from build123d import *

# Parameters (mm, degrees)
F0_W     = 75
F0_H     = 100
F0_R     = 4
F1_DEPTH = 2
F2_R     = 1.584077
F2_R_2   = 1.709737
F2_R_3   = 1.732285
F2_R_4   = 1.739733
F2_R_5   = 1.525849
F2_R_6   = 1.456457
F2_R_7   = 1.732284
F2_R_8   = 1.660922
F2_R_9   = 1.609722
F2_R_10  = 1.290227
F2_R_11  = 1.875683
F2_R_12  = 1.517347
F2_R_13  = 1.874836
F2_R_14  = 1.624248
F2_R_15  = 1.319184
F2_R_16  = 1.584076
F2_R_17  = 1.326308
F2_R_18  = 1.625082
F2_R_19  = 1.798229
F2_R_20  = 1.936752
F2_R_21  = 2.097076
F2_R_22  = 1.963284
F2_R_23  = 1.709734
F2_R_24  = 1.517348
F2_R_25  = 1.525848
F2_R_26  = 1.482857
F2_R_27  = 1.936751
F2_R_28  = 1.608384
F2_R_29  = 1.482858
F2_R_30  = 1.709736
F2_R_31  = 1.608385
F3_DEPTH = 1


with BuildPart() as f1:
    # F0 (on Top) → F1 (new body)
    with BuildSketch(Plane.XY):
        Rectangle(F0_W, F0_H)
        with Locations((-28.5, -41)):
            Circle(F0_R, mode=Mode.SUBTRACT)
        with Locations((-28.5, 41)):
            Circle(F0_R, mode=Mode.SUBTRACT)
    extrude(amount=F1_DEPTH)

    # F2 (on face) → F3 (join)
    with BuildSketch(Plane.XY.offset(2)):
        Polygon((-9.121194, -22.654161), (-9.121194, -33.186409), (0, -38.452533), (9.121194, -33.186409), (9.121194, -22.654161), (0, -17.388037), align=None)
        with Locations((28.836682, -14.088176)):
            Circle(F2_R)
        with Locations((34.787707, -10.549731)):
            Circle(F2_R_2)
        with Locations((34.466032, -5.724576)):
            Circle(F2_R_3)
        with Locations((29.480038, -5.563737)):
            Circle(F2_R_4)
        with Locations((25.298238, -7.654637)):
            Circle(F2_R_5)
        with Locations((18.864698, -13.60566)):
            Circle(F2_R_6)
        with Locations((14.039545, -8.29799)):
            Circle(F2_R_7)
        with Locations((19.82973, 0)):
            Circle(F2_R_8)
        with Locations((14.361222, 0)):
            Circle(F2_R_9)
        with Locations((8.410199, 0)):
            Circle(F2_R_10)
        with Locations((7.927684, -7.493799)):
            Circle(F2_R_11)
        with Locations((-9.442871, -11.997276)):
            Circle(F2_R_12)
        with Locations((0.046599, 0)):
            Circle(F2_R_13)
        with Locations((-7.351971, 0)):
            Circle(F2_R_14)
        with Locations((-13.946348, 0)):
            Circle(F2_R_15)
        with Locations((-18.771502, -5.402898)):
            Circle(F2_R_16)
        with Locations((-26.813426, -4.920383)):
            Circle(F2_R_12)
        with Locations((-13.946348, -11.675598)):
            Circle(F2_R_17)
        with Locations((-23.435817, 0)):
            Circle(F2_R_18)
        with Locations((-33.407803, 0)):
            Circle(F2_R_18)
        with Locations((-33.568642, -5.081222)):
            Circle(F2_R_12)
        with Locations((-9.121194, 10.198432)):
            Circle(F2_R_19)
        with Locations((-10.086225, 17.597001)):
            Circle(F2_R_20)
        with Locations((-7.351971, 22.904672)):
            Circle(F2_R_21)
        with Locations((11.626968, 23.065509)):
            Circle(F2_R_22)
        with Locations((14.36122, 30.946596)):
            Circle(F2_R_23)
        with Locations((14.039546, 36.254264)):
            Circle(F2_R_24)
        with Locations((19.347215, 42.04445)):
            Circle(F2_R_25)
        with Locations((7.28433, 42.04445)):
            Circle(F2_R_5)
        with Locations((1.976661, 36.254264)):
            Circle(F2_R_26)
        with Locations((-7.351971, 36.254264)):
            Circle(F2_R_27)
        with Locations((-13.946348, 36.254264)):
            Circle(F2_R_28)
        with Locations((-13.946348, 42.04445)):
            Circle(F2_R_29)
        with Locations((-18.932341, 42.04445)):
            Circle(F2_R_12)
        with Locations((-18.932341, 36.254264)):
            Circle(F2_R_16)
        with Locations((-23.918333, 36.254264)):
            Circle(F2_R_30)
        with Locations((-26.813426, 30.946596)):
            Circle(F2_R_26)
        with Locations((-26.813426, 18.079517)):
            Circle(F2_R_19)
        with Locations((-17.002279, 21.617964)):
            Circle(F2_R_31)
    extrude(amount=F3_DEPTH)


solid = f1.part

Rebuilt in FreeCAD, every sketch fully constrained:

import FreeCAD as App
import Part
import Sketcher
Q = App.Units.Quantity

doc = App.newDocument("Part")
params = doc.addObject("Spreadsheet::Sheet", "Params")
for row, (alias, value) in enumerate([
    ("sketch1_diameter", "8 mm"),
    ("sketch1_width", "75 mm"),
    ("sketch1_height", "100 mm"),
    ("pad1_length", "2 mm"),
    ("pad2_length", "1 mm"),
], start=1):
    params.set(f"A{row}", alias)
    params.set(f"B{row}", "=" + value)
    params.setAlias(f"B{row}", alias)

body = doc.addObject("PartDesign::Body", "Body")

# Sketch on XY plane
sketch1 = body.newObject("Sketcher::SketchObject", "Sketch")
sketch1.AttachmentSupport = (doc.getObject("XY_Plane"), [""])
sketch1.MapMode = "FlatFace"
sketch1.addGeometry([
    Part.LineSegment(App.Vector(-37.5, 50, 0), App.Vector(-37.5, -50, 0)),  # 0
    Part.LineSegment(App.Vector(-37.5, -50, 0), App.Vector(37.5, -50, 0)),  # 1
    Part.LineSegment(App.Vector(37.5, -50, 0), App.Vector(37.5, 50, 0)),  # 2
    Part.LineSegment(App.Vector(37.5, 50, 0), App.Vector(-37.5, 50, 0)),  # 3
    Part.Circle(App.Vector(-28.5, -41, 0), App.Vector(0, 0, 1), 4),  # 4
    Part.Circle(App.Vector(-28.5, 41, 0), App.Vector(0, 0, 1), 4),  # 5
], False)
sketch1.addConstraint([
    Sketcher.Constraint("Coincident", 0, 2, 1, 1),
    Sketcher.Constraint("Coincident", 1, 2, 2, 1),
    Sketcher.Constraint("Coincident", 2, 2, 3, 1),
    Sketcher.Constraint("Coincident", 3, 2, 0, 1),
    Sketcher.Constraint("Vertical", 0),
    Sketcher.Constraint("Horizontal", 1),
    Sketcher.Constraint("Vertical", 2),
    Sketcher.Constraint("Horizontal", 3),
    Sketcher.Constraint("Equal", 4, 5),
    Sketcher.Constraint("Symmetric", 0, 2, 2, 2, -1, 1),
    Sketcher.Constraint("Symmetric", 4, 3, 5, 3, -1),
    Sketcher.Constraint("Diameter", 4, Q("8 mm")),
    Sketcher.Constraint("DistanceX", 1, 1, 1, 2, Q("75 mm")),
    Sketcher.Constraint("DistanceY", 0, 2, 0, 1, Q("100 mm")),
    Sketcher.Constraint("DistanceY", 4, 3, -1, 1, Q("41 mm")),
    Sketcher.Constraint("DistanceX", 0, 2, 4, 3, Q("9 mm")),
])
sketch1.setExpression("Constraints[11]", "Params.sketch1_diameter")
sketch1.setExpression("Constraints[12]", "Params.sketch1_width")
sketch1.setExpression("Constraints[13]", "Params.sketch1_height")
pad1 = body.newObject("PartDesign::Pad", "Pad")
pad1.Profile = sketch1
pad1.setExpression("Length", "Params.pad1_length")

# Sketch on XY plane
sketch2 = body.newObject("Sketcher::SketchObject", "Sketch001")
sketch2.AttachmentSupport = (doc.getObject("XY_Plane"), [""])
sketch2.MapMode = "FlatFace"
sketch2.AttachmentOffset = App.Placement(App.Vector(0, 0, 2), App.Rotation())
sketch2.addGeometry([
    Part.LineSegment(App.Vector(-9.1, -22.7, 0), App.Vector(-9.1, -33.2, 0)),  # 0
    Part.LineSegment(App.Vector(-9.1, -33.2, 0), App.Vector(0, -38.5, 0)),  # 1
    Part.LineSegment(App.Vector(0, -38.5, 0), App.Vector(9.1, -33.2, 0)),  # 2
    Part.LineSegment(App.Vector(9.1, -33.2, 0), App.Vector(9.1, -22.7, 0)),  # 3
    Part.LineSegment(App.Vector(9.1, -22.7, 0), App.Vector(0, -17.4, 0)),  # 4
    Part.LineSegment(App.Vector(0, -17.4, 0), App.Vector(-9.1, -22.7, 0)),  # 5
    Part.Circle(App.Vector(28.8, -14.1, 0), App.Vector(0, 0, 1), 1.6),  # 6
    Part.Circle(App.Vector(34.8, -10.5, 0), App.Vector(0, 0, 1), 1.7),  # 7
    Part.Circle(App.Vector(34.5, -5.7, 0), App.Vector(0, 0, 1), 1.7),  # 8
    Part.Circle(App.Vector(29.5, -5.6, 0), App.Vector(0, 0, 1), 1.7),  # 9
    Part.Circle(App.Vector(25.3, -7.7, 0), App.Vector(0, 0, 1), 1.5),  # 10
    Part.Circle(App.Vector(18.9, -13.6, 0), App.Vector(0, 0, 1), 1.5),  # 11
    Part.Circle(App.Vector(14, -8.3, 0), App.Vector(0, 0, 1), 1.7),  # 12
    Part.Circle(App.Vector(19.8, 0, 0), App.Vector(0, 0, 1), 1.7),  # 13
    Part.Circle(App.Vector(14.4, 0, 0), App.Vector(0, 0, 1), 1.6),  # 14
    Part.Circle(App.Vector(8.4, 0, 0), App.Vector(0, 0, 1), 1.3),  # 15
    Part.Circle(App.Vector(7.9, -7.5, 0), App.Vector(0, 0, 1), 1.9),  # 16
    Part.Circle(App.Vector(-9.4, -12, 0), App.Vector(0, 0, 1), 1.5),  # 17
    Part.Circle(App.Vector(0, 0, 0), App.Vector(0, 0, 1), 1.9),  # 18
    Part.Circle(App.Vector(-7.4, 0, 0), App.Vector(0, 0, 1), 1.6),  # 19
    Part.Circle(App.Vector(-13.9, 0, 0), App.Vector(0, 0, 1), 1.3),  # 20
    Part.Circle(App.Vector(-18.8, -5.4, 0), App.Vector(0, 0, 1), 1.6),  # 21
    Part.Circle(App.Vector(-26.8, -4.9, 0), App.Vector(0, 0, 1), 1.5),  # 22
    Part.Circle(App.Vector(-13.9, -11.7, 0), App.Vector(0, 0, 1), 1.3),  # 23
    Part.Circle(App.Vector(-23.4, 0, 0), App.Vector(0, 0, 1), 1.6),  # 24
    Part.Circle(App.Vector(-33.4, 0, 0), App.Vector(0, 0, 1), 1.6),  # 25
    Part.Circle(App.Vector(-33.6, -5.1, 0), App.Vector(0, 0, 1), 1.5),  # 26
    Part.Circle(App.Vector(-9.1, 10.2, 0), App.Vector(0, 0, 1), 1.8),  # 27
    Part.Circle(App.Vector(-10.1, 17.6, 0), App.Vector(0, 0, 1), 1.9),  # 28
    Part.Circle(App.Vector(-7.4, 22.9, 0), App.Vector(0, 0, 1), 2.1),  # 29
    Part.Circle(App.Vector(11.6, 23.1, 0), App.Vector(0, 0, 1), 2),  # 30
    Part.Circle(App.Vector(14.4, 30.9, 0), App.Vector(0, 0, 1), 1.7),  # 31
    Part.Circle(App.Vector(14, 36.3, 0), App.Vector(0, 0, 1), 1.5),  # 32
    Part.Circle(App.Vector(19.3, 42, 0), App.Vector(0, 0, 1), 1.5),  # 33
    Part.Circle(App.Vector(7.3, 42, 0), App.Vector(0, 0, 1), 1.5),  # 34
    Part.Circle(App.Vector(2, 36.3, 0), App.Vector(0, 0, 1), 1.5),  # 35
    Part.Circle(App.Vector(-7.4, 36.3, 0), App.Vector(0, 0, 1), 1.9),  # 36
    Part.Circle(App.Vector(-13.9, 36.3, 0), App.Vector(0, 0, 1), 1.6),  # 37
    Part.Circle(App.Vector(-13.9, 42, 0), App.Vector(0, 0, 1), 1.5),  # 38
    Part.Circle(App.Vector(-18.9, 42, 0), App.Vector(0, 0, 1), 1.5),  # 39
    Part.Circle(App.Vector(-18.9, 36.3, 0), App.Vector(0, 0, 1), 1.6),  # 40
    Part.Circle(App.Vector(-23.9, 36.3, 0), App.Vector(0, 0, 1), 1.7),  # 41
    Part.Circle(App.Vector(-26.8, 30.9, 0), App.Vector(0, 0, 1), 1.5),  # 42
    Part.Circle(App.Vector(-26.8, 18.1, 0), App.Vector(0, 0, 1), 1.8),  # 43
    Part.Circle(App.Vector(-17, 21.6, 0), App.Vector(0, 0, 1), 1.6),  # 44
], False)
sketch2.addConstraint([
    Sketcher.Constraint("Coincident", 0, 2, 1, 1),
    Sketcher.Constraint("Coincident", 1, 2, 2, 1),
    Sketcher.Constraint("Coincident", 2, 2, 3, 1),
    Sketcher.Constraint("Coincident", 3, 2, 4, 1),
    Sketcher.Constraint("Coincident", 4, 2, 5, 1),
    Sketcher.Constraint("Coincident", 5, 2, 0, 1),
    Sketcher.Constraint("Vertical", 0),
    Sketcher.Constraint("Vertical", 3),
    Sketcher.Constraint("Equal", 8, 12),
    Sketcher.Constraint("Equal", 6, 21),
    Sketcher.Constraint("Equal", 17, 22),
    Sketcher.Constraint("Equal", 24, 25),
    Sketcher.Constraint("Equal", 22, 26),
    Sketcher.Constraint("Equal", 26, 32),
    Sketcher.Constraint("Equal", 10, 33),
    Sketcher.Constraint("Equal", 33, 34),
    Sketcher.Constraint("Equal", 28, 36),
    Sketcher.Constraint("Equal", 35, 38),
    Sketcher.Constraint("Equal", 32, 39),
    Sketcher.Constraint("Equal", 21, 40),
    Sketcher.Constraint("Equal", 31, 41),
    Sketcher.Constraint("Equal", 38, 42),
    Sketcher.Constraint("Equal", 27, 43),
    Sketcher.Constraint("Equal", 37, 44),
    Sketcher.Constraint("Symmetric", 0, 2, 2, 2, -2),
    Sketcher.Constraint("PointOnObject", 13, 3, -1),
    Sketcher.Constraint("PointOnObject", 14, 3, -1),
    Sketcher.Constraint("PointOnObject", 15, 3, -1),
    Sketcher.Constraint("PointOnObject", 18, 3, -1),
    Sketcher.Constraint("PointOnObject", 19, 3, -1),
    Sketcher.Constraint("PointOnObject", 20, 3, -1),
    Sketcher.Constraint("PointOnObject", 24, 3, -1),
    Sketcher.Constraint("PointOnObject", 25, 3, -1),
    Sketcher.Constraint("PointOnObject", 1, 2, -2),
    Sketcher.Constraint("PointOnObject", 4, 2, -2),
    Sketcher.Constraint("Parallel", 1, 4),
    Sketcher.Constraint("Parallel", 2, 5),
    Sketcher.Constraint("Horizontal", 33, 3, 34, 3),
    Sketcher.Constraint("Horizontal", 32, 3, 35, 3),
    Sketcher.Constraint("Horizontal", 35, 3, 36, 3),
    Sketcher.Constraint("Horizontal", 36, 3, 37, 3),
    Sketcher.Constraint("Horizontal", 34, 3, 38, 3),
    Sketcher.Constraint("Horizontal", 38, 3, 39, 3),
    Sketcher.Constraint("Horizontal", 37, 3, 40, 3),
    Sketcher.Constraint("Horizontal", 40, 3, 41, 3),
    Sketcher.Constraint("Horizontal", 31, 3, 42, 3),
    Sketcher.Constraint("Vertical", 20, 3, 23, 3),
    Sketcher.Constraint("Vertical", 19, 3, 29, 3),
    Sketcher.Constraint("Vertical", 12, 3, 32, 3),
    Sketcher.Constraint("Vertical", 29, 3, 36, 3),
    Sketcher.Constraint("Vertical", 23, 3, 37, 3),
    Sketcher.Constraint("Vertical", 37, 3, 38, 3),
    Sketcher.Constraint("Vertical", 39, 3, 40, 3),
    Sketcher.Constraint("Vertical", 22, 3, 42, 3),
    Sketcher.Constraint("Vertical", 42, 3, 43, 3),
    Sketcher.Constraint("Vertical", 27, 3, 0, 2),
    Sketcher.Constraint("Angle", 1, Q("-30.000001 deg")),
    Sketcher.Constraint("Diameter", 10, Q("3.051698 mm")),
    Sketcher.Constraint("Diameter", 36, Q("3.873502 mm")),
    Sketcher.Constraint("Diameter", 8, Q("3.46457 mm")),
    Sketcher.Constraint("Diameter", 18, Q("3.749672 mm")),
    Sketcher.Constraint("Diameter", 27, Q("3.596458 mm")),
    Sketcher.Constraint("Diameter", 30, Q("3.926568 mm")),
    Sketcher.Constraint("Diameter", 31, Q("3.419468 mm")),
    Sketcher.Constraint("Diameter", 37, Q("3.216768 mm")),
    Sketcher.Constraint("Diameter", 6, Q("3.168154 mm")),
    Sketcher.Constraint("Diameter", 7, Q("3.419474 mm")),
    Sketcher.Constraint("Diameter", 9, Q("3.479466 mm")),
    Sketcher.Constraint("Diameter", 11, Q("2.912914 mm")),
    Sketcher.Constraint("Diameter", 13, Q("3.321844 mm")),
    Sketcher.Constraint("Diameter", 14, Q("3.219444 mm")),
    Sketcher.Constraint("Diameter", 15, Q("2.580454 mm")),
    Sketcher.Constraint("Diameter", 16, Q("3.751366 mm")),
    Sketcher.Constraint("Diameter", 17, Q("3.034694 mm")),
    Sketcher.Constraint("Diameter", 19, Q("3.248496 mm")),
    Sketcher.Constraint("Diameter", 20, Q("2.638368 mm")),
    Sketcher.Constraint("Diameter", 23, Q("2.652616 mm")),
    Sketcher.Constraint("Diameter", 24, Q("3.250164 mm")),
    Sketcher.Constraint("Diameter", 29, Q("4.194152 mm")),
    Sketcher.Constraint("Diameter", 35, Q("2.965714 mm")),
    Sketcher.Constraint("DistanceY", -1, 1, 28, 3, Q("17.597001 mm")),
    Sketcher.Constraint("DistanceX", -1, 1, 11, 3, Q("18.864698 mm")),
    Sketcher.Constraint("DistanceX", -1, 1, 15, 3, Q("8.410199 mm")),
    Sketcher.Constraint("DistanceY", 16, 3, -1, 1, Q("7.493799 mm")),
    Sketcher.Constraint("DistanceX", -1, 1, 18, 3, Q("0.046599 mm")),
    Sketcher.Constraint("DistanceY", 21, 3, -1, 1, Q("5.402898 mm")),
    Sketcher.Constraint("DistanceY", 23, 3, -1, 1, Q("11.675598 mm")),
    Sketcher.Constraint("DistanceY", 6, 3, 8, 3, Q("8.3636 mm")),
    Sketcher.Constraint("DistanceX", 10, 3, 9, 3, Q("4.1818 mm")),
    Sketcher.Constraint("DistanceY", 10, 3, 9, 3, Q("2.0909 mm")),
    Sketcher.Constraint("DistanceX", 13, 3, 8, 3, Q("14.636302 mm")),
    Sketcher.Constraint("DistanceX", 17, 3, 19, 3, Q("2.0909 mm")),
    Sketcher.Constraint("DistanceX", 21, 3, 18, 3, Q("18.818101 mm")),
    Sketcher.Constraint("DistanceX", 25, 3, 21, 3, Q("14.636301 mm")),
    Sketcher.Constraint("DistanceX", 29, 3, 34, 3, Q("14.636301 mm")),
    Sketcher.Constraint("DistanceX", 43, 3, 28, 3, Q("16.727201 mm")),
    Sketcher.Constraint("DistanceY", 3, 2, 11, 3, Q("9.048501 mm")),
    Sketcher.Constraint("DistanceY", 0, 2, 0, 1, Q("10.532248 mm")),
    Sketcher.Constraint("DistanceX", -1, 1, 6, 3, Q("28.836682 mm")),
    Sketcher.Constraint("DistanceY", 7, 3, -1, 1, Q("10.549731 mm")),
    Sketcher.Constraint("DistanceX", -1, 1, 8, 3, Q("34.466032 mm")),
    Sketcher.Constraint("DistanceX", -1, 1, 9, 3, Q("29.480038 mm")),
    Sketcher.Constraint("DistanceY", 11, 3, -1, 1, Q("13.60566 mm")),
    Sketcher.Constraint("DistanceY", 12, 3, -1, 1, Q("8.29799 mm")),
    Sketcher.Constraint("DistanceX", 17, 3, -1, 1, Q("9.442871 mm")),
    Sketcher.Constraint("DistanceX", 26, 3, -1, 1, Q("33.568642 mm")),
    Sketcher.Constraint("DistanceY", -1, 1, 30, 3, Q("23.065509 mm")),
    Sketcher.Constraint("DistanceX", -1, 1, 31, 3, Q("14.36122 mm")),
    Sketcher.Constraint("DistanceY", -1, 1, 33, 3, Q("42.04445 mm")),
    Sketcher.Constraint("DistanceX", -1, 1, 35, 3, Q("1.976661 mm")),
    Sketcher.Constraint("DistanceX", 39, 3, -1, 1, Q("18.932341 mm")),
    Sketcher.Constraint("DistanceX", 44, 3, -1, 1, Q("17.002279 mm")),
    Sketcher.Constraint("DistanceY", 8, 3, 9, 3, Q("0.160839 mm")),
    Sketcher.Constraint("DistanceX", 9, 3, 7, 3, Q("5.307669 mm")),
    Sketcher.Constraint("DistanceX", 14, 3, 13, 3, Q("5.468508 mm")),
    Sketcher.Constraint("DistanceX", 16, 3, 12, 3, Q("6.111861 mm")),
    Sketcher.Constraint("DistanceX", 20, 3, 16, 3, Q("21.874032 mm")),
    Sketcher.Constraint("DistanceX", 22, 3, 24, 3, Q("3.377609 mm")),
    Sketcher.Constraint("DistanceX", 24, 3, 20, 3, Q("9.489469 mm")),
    Sketcher.Constraint("DistanceY", 26, 3, 22, 3, Q("0.160839 mm")),
    Sketcher.Constraint("DistanceX", 21, 3, 27, 3, Q("9.650308 mm")),
    Sketcher.Constraint("DistanceY", 21, 3, 27, 3, Q("15.60133 mm")),
    Sketcher.Constraint("DistanceX", 28, 3, 27, 3, Q("0.965031 mm")),
    Sketcher.Constraint("DistanceY", 28, 3, 29, 3, Q("5.307671 mm")),
    Sketcher.Constraint("DistanceX", 29, 3, 30, 3, Q("18.978939 mm")),
    Sketcher.Constraint("DistanceY", 29, 3, 32, 3, Q("13.349592 mm")),
    Sketcher.Constraint("DistanceX", 32, 3, 33, 3, Q("5.307669 mm")),
    Sketcher.Constraint("DistanceX", 41, 3, 40, 3, Q("4.985992 mm")),
    Sketcher.Constraint("DistanceY", 43, 3, 42, 3, Q("12.867079 mm")),
    Sketcher.Constraint("DistanceY", 44, 3, 29, 3, Q("1.286708 mm")),
    Sketcher.Constraint("DistanceY", 44, 3, 42, 3, Q("9.328632 mm")),
    Sketcher.Constraint("DistanceY", 4, 2, 17, 3, Q("5.390761 mm")),
    Sketcher.Constraint("DistanceY", 6, 3, -1, 1, Q("14.088176 mm")),
    Sketcher.Constraint("DistanceY", 22, 3, -1, 1, Q("4.920383 mm")),
])
pad2 = body.newObject("PartDesign::Pad", "Pad001")
pad2.Profile = sketch2
pad2.setExpression("Length", "Params.pad2_length")

doc.recompute()
